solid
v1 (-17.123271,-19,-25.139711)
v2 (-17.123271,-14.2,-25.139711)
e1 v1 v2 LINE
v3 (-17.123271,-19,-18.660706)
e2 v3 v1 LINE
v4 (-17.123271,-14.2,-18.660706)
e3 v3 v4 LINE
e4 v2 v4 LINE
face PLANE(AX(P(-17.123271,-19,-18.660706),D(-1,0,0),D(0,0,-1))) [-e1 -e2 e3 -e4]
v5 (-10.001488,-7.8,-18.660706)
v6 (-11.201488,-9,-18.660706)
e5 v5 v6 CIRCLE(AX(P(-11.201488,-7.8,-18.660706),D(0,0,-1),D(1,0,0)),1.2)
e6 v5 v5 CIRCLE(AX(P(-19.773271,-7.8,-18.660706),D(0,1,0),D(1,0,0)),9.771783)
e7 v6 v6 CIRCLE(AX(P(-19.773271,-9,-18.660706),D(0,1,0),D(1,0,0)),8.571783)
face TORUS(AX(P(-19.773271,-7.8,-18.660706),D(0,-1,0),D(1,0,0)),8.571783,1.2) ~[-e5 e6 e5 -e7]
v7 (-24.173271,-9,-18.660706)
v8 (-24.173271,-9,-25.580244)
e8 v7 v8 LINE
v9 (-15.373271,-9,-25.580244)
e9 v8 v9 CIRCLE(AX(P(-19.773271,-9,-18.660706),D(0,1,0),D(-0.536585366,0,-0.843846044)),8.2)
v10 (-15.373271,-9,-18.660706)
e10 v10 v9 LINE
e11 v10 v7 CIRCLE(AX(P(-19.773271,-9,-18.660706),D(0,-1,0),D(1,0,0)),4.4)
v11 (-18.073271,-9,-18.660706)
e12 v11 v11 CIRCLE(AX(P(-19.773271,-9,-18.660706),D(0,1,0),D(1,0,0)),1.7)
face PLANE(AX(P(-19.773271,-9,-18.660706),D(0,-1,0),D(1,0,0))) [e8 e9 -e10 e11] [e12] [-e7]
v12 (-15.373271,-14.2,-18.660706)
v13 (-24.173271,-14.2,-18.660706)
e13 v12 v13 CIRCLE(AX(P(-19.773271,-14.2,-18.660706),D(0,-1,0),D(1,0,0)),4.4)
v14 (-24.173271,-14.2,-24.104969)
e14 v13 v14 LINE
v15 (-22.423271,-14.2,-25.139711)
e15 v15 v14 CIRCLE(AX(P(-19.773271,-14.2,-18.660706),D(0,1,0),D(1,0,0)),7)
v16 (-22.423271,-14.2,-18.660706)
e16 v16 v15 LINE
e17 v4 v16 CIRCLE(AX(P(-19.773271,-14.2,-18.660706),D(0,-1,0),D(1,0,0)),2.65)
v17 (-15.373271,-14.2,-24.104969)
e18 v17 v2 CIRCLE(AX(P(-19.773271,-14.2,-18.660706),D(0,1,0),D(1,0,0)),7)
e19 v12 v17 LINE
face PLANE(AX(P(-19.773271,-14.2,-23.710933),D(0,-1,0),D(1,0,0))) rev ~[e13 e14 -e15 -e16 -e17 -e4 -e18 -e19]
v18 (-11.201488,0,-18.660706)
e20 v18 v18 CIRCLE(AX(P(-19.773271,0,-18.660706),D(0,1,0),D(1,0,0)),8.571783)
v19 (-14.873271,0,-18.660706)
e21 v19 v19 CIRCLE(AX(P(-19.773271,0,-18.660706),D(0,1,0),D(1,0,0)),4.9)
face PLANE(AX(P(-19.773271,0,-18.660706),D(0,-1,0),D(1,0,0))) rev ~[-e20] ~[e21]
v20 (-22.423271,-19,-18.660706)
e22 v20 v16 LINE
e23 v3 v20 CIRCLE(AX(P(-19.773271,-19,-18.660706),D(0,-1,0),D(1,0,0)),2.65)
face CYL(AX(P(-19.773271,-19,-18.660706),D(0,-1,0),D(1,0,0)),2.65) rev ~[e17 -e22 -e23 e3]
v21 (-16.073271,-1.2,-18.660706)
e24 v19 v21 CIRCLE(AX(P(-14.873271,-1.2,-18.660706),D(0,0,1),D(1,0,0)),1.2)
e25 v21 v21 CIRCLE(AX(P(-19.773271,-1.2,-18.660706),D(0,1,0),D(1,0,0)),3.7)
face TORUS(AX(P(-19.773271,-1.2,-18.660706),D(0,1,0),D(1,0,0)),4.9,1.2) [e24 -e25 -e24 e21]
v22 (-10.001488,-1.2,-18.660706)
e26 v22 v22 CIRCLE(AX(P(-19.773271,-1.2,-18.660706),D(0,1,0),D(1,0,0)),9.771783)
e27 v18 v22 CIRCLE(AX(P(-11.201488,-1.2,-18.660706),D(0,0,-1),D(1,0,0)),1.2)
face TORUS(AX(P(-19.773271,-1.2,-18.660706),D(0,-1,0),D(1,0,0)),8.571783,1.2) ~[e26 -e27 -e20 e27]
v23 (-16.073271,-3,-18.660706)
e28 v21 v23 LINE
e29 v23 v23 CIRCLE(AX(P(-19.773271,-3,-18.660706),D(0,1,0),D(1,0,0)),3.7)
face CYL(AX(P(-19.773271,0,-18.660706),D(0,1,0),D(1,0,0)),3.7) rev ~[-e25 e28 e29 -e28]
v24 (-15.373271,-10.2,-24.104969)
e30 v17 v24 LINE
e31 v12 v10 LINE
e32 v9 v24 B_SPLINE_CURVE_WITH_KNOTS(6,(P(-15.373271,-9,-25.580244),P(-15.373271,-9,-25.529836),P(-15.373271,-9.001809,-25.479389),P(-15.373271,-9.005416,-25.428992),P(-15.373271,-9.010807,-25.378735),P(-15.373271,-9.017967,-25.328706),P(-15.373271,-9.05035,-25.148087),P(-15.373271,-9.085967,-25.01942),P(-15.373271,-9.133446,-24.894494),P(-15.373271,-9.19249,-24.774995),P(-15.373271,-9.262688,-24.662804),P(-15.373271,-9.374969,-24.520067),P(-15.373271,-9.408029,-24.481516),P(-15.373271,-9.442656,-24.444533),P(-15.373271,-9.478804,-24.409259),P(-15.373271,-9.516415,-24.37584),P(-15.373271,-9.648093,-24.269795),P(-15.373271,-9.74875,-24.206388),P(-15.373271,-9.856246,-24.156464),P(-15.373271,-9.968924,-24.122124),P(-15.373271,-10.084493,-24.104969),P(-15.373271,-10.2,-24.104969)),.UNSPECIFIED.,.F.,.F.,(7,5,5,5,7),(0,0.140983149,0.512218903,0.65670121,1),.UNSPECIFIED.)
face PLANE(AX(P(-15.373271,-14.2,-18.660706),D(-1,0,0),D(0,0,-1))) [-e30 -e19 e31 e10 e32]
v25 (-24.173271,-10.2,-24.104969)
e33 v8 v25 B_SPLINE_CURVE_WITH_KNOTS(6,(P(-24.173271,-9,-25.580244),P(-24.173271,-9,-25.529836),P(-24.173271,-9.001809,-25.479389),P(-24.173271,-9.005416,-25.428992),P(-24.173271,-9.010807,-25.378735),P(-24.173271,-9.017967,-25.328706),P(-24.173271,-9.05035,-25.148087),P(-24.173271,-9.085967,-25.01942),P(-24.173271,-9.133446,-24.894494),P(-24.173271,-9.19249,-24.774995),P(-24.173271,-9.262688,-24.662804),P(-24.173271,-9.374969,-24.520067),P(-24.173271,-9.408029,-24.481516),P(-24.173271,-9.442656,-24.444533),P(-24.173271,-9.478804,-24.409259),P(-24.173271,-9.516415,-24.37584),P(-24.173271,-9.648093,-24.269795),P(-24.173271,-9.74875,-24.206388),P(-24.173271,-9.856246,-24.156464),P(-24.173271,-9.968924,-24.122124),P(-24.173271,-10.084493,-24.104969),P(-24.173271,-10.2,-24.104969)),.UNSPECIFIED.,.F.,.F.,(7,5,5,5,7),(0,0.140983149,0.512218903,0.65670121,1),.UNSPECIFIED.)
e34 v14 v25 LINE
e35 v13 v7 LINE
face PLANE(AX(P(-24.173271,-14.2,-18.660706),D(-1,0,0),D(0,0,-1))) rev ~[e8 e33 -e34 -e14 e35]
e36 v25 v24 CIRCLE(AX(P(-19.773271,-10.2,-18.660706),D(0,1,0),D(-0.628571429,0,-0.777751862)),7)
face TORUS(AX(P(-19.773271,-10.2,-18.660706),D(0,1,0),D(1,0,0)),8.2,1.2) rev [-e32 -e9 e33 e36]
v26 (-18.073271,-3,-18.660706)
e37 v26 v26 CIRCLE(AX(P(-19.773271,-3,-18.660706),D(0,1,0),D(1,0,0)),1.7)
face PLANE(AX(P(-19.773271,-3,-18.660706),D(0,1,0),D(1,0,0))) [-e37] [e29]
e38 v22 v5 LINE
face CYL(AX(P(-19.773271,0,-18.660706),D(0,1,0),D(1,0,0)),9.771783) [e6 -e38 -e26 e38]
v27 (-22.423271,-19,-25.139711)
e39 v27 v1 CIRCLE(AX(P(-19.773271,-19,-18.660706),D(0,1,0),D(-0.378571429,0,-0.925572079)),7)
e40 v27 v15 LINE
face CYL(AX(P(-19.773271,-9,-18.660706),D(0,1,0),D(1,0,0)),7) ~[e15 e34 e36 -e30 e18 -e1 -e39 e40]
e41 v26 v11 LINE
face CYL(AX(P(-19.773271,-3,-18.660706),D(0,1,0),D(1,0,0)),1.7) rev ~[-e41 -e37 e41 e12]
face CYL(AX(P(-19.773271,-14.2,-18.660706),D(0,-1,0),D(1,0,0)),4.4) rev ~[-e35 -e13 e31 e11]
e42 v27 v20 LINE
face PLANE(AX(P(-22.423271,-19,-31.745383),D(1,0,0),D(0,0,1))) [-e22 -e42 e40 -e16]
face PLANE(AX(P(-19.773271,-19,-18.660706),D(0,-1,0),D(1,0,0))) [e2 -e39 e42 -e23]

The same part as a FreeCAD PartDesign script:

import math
import FreeCAD as App
import Part
import Sketcher
from FreeCAD import Vector
Q = App.Units.Quantity


def edges_at(feature, points):
    """Names of the edges that pass closest to the given points."""
    edges = feature.Shape.Edges
    near = lambda p: min(range(len(edges)), key=lambda i: edges[i].distToShape(Part.Vertex(*p))[0])
    return sorted({f"Edge{near(p) + 1}" for p in points})

doc = App.newDocument("Part")
body = doc.addObject("PartDesign::Body", "Body")

# Sketch on XZ plane
sketch1 = body.newObject("Sketcher::SketchObject", "Sketch")
sketch1.AttachmentSupport = (doc.getObject("XZ_Plane"), [""])
sketch1.MapMode = "FlatFace"
sketch1.addGeometry([
    Part.LineSegment(Vector(-30, -9, 0), Vector(-30, -29, 0)),
    Part.LineSegment(Vector(-30, -29, 0), Vector(-10, -29, 0)),
    Part.LineSegment(Vector(-10, -29, 0), Vector(-10, -9, 0)),
    Part.LineSegment(Vector(-10, -9, 0), Vector(-30, -9, 0)),
], False)
sketch1.addConstraint([
    Sketcher.Constraint("Coincident", 0, 2, 1, 1),
    Sketcher.Constraint("Coincident", 1, 2, 2, 1),
    Sketcher.Constraint("Coincident", 2, 2, 3, 1),
    Sketcher.Constraint("Coincident", 3, 2, 0, 1),
    Sketcher.Constraint("Vertical", 0),
    Sketcher.Constraint("Horizontal", 1),
    Sketcher.Constraint("Vertical", 2),
    Sketcher.Constraint("Horizontal", 3),
    Sketcher.Constraint("Equal", 3, 0),
    Sketcher.Constraint("DistanceX", 1, 1, 1, 2, Q("20 mm")),
    Sketcher.Constraint("DistanceX", 0, 2, -1, 1, Q("29.773271 mm")),
    Sketcher.Constraint("DistanceY", 0, 2, -1, 1, Q("28.660706 mm")),
])
pad1 = body.newObject("PartDesign::Pad", "Pad")
pad1.Profile = sketch1
pad1.Length = 9

# Sketch on XZ plane
sketch2 = body.newObject("Sketcher::SketchObject", "Sketch001")
sketch2.AttachmentSupport = (doc.getObject("XZ_Plane"), [""])
sketch2.MapMode = "FlatFace"
sketch2.AttachmentOffset = App.Placement(Vector(0, 0, 9), App.Rotation())
sketch2.addGeometry(Part.Circle(Vector(-20, -19, 0), Vector(0, 0, 1), 7), False)
sketch2.addConstraint([
    Sketcher.Constraint("Diameter", 0, Q("14 mm")),
    Sketcher.Constraint("DistanceX", 0, 3, -1, 1, Q("19.773271 mm")),
    Sketcher.Constraint("DistanceY", 0, 3, -1, 1, Q("18.660706 mm")),
])
pad2 = body.newObject("PartDesign::Pad", "Pad001")
pad2.Profile = sketch2
pad2.Length = 10

# Sketch on XZ plane
sketch3 = body.newObject("Sketcher::SketchObject", "Sketch002")
sketch3.AttachmentSupport = (doc.getObject("XZ_Plane"), [""])
sketch3.MapMode = "FlatFace"
sketch3.AttachmentOffset = App.Placement(Vector(0, 0, 19), App.Rotation())
sketch3.addGeometry([
    Part.LineSegment(Vector(-17.1, -31.7, 0), Vector(-17.1, -18.7, 0)),
    Part.ArcOfCircle(Part.Circle(Vector(-19.8, -18.7, 0), Vector(0, 0, 1), 2.6), math.radians(0), math.radians(180)),
    Part.LineSegment(Vector(-22.4, -18.7, 0), Vector(-22.4, -31.7, 0)),
    Part.LineSegment(Vector(-22.4, -31.7, 0), Vector(-17.1, -31.7, 0)),
], False)
sketch3.addConstraint([
    Sketcher.Constraint("Tangent", 0, 2, 1, 1),
    Sketcher.Constraint("Tangent", 1, 2, 2, 1),
    Sketcher.Constraint("Coincident", 2, 2, 3, 1),
    Sketcher.Constraint("Coincident", 3, 2, 0, 1),
    Sketcher.Constraint("Vertical", 0),
    Sketcher.Constraint("Vertical", 2),
    Sketcher.Constraint("Horizontal", 3),
    Sketcher.Constraint("Radius", 1, Q("2.65 mm")),
    Sketcher.Constraint("DistanceY", 0, 1, 0, 2, Q("13.084677 mm")),
    Sketcher.Constraint("DistanceX", 1, 3, -1, 1, Q("19.773271 mm")),
    Sketcher.Constraint("DistanceY", 1, 3, -1, 1, Q("18.660706 mm")),
])
pocket1 = body.newObject("PartDesign::Pocket", "Pocket")
pocket1.Profile = sketch3
pocket1.Length = 8

# Sketch on XY plane
sketch4 = body.newObject("Sketcher::SketchObject", "Sketch003")
sketch4.AttachmentSupport = (doc.getObject("XY_Plane"), [""])
sketch4.MapMode = "FlatFace"
sketch4.AttachmentOffset = App.Placement(Vector(0, 0, -28.660706), App.Rotation())
sketch4.addGeometry([
    Part.LineSegment(Vector(-24, -14, 0), Vector(-24, -9, 0)),
    Part.LineSegment(Vector(-24, -9, 0), Vector(-15, -9, 0)),
    Part.LineSegment(Vector(-15, -9, 0), Vector(-15, -14, 0)),
    Part.LineSegment(Vector(-15, -14, 0), Vector(-24, -14, 0)),
], False)
sketch4.addConstraint([
    Sketcher.Constraint("Coincident", 0, 2, 1, 1),
    Sketcher.Constraint("Coincident", 1, 2, 2, 1),
    Sketcher.Constraint("Coincident", 2, 2, 3, 1),
    Sketcher.Constraint("Coincident", 3, 2, 0, 1),
    Sketcher.Constraint("Vertical", 0),
    Sketcher.Constraint("Horizontal", 1),
    Sketcher.Constraint("Vertical", 2),
    Sketcher.Constraint("Horizontal", 3),
    Sketcher.Constraint("DistanceY", 0, 1, 0, 2, Q("5.2 mm")),
    Sketcher.Constraint("DistanceY", 0, 2, -1, 1, Q("9 mm")),
    Sketcher.Constraint("DistanceX", 1, 1, 1, 2, Q("8.75 mm")),
    Sketcher.Constraint("DistanceX", 0, 2, -1, 1, Q("24.148271 mm")),
])
pocket2 = body.newObject("PartDesign::Pocket", "Pocket001")
pocket2.Profile = sketch4
pocket2.Length = 1
pocket2.Reversed = True

# Sketch on XZ plane
sketch5 = body.newObject("Sketcher::SketchObject", "Sketch004")
sketch5.AttachmentSupport = (doc.getObject("XZ_Plane"), [""])
sketch5.MapMode = "FlatFace"
sketch5.addGeometry(Part.Circle(Vector(-19.8, -18.7, 0), Vector(0, 0, 1), 3.7), False)
sketch5.addConstraint([
    Sketcher.Constraint("Diameter", 0, Q("7.4 mm")),
    Sketcher.Constraint("DistanceX", 0, 3, -1, 1, Q("19.773271 mm")),
    Sketcher.Constraint("DistanceY", 0, 3, -1, 1, Q("18.660706 mm")),
])
pocket3 = body.newObject("PartDesign::Pocket", "Pocket002")
pocket3.Profile = sketch5
pocket3.Length = 3
pocket3.Reversed = True

# Sketch on XZ plane
sketch6 = body.newObject("Sketcher::SketchObject", "Sketch005")
sketch6.AttachmentSupport = (doc.getObject("XZ_Plane"), [""])
sketch6.MapMode = "FlatFace"
sketch6.AttachmentOffset = App.Placement(Vector(0, 0, 19), App.Rotation())
sketch6.addGeometry(Part.Circle(Vector(-19.8, -18.7, 0), Vector(0, 0, 1), 1.7), False)
sketch6.addConstraint([
    Sketcher.Constraint("Diameter", 0, Q("3.35 mm")),
    Sketcher.Constraint("DistanceX", 0, 3, -1, 1, Q("19.773271 mm")),
    Sketcher.Constraint("DistanceY", 0, 3, -1, 1, Q("18.660706 mm")),
])
pocket4 = body.newObject("PartDesign::Pocket", "Pocket003")
pocket4.Profile = sketch6
pocket4.Length = 5

# Sketch on XZ plane
sketch7 = body.newObject("Sketcher::SketchObject", "Sketch006")
sketch7.AttachmentSupport = (doc.getObject("XZ_Plane"), [""])
sketch7.MapMode = "FlatFace"
sketch7.addGeometry([
    Part.Circle(Vector(-20, -19, 0), Vector(0, 0, 1), 17),
    Part.Circle(Vector(-20, -19, 0), Vector(0, 0, 1), 10),
], False)
sketch7.addConstraint([
    Sketcher.Constraint("Coincident", 1, 3, 0, 3),
    Sketcher.Constraint("Diameter", 0, Q("33.509702 mm")),
    Sketcher.Constraint("Diameter", 1, Q("19.543566 mm")),
    Sketcher.Constraint("DistanceX", 0, 3, -1, 1, Q("19.773271 mm")),
    Sketcher.Constraint("DistanceY", 0, 3, -1, 1, Q("18.660706 mm")),
])
pocket5 = body.newObject("PartDesign::Pocket", "Pocket004")
pocket5.Profile = sketch7
pocket5.Length = 20
pocket5.Reversed = True

# Sketch on XZ plane
sketch8 = body.newObject("Sketcher::SketchObject", "Sketch007")
sketch8.AttachmentSupport = (doc.getObject("XZ_Plane"), [""])
sketch8.MapMode = "FlatFace"
sketch8.AttachmentOffset = App.Placement(Vector(0, 0, 3), App.Rotation())
sketch8.addGeometry(Part.Circle(Vector(-19.8, -18.7, 0), Vector(0, 0, 1), 1.7), False)
sketch8.addConstraint([
    Sketcher.Constraint("Diameter", 0, Q("3.4 mm")),
    Sketcher.Constraint("DistanceX", 0, 3, -1, 1, Q("19.773271 mm")),
    Sketcher.Constraint("DistanceY", 0, 3, -1, 1, Q("18.660706 mm")),
])
pocket6 = body.newObject("PartDesign::Pocket", "Pocket005")
pocket6.Profile = sketch8
pocket6.Length = 20
pocket6.Reversed = True
doc.recompute()

fillet = body.newObject("PartDesign::Fillet", "Fillet")
fillet.Base = (pocket6, edges_at(pocket6, [
    (-29.545, -9, -18.661),
    (-29.545, -9, -18.661),
    (-29.545, -9, -18.661),
    (-26.773, -9, -18.661),
    (-29.545, 0, -18.661),
    (-23.473, 0, -18.661),
]))
fillet.Radius = 1.2

# Sketch on XZ plane
sketch9 = body.newObject("Sketcher::SketchObject", "Sketch008")
sketch9.AttachmentSupport = (doc.getObject("XZ_Plane"), [""])
sketch9.MapMode = "FlatFace"
sketch9.AttachmentOffset = App.Placement(Vector(0, 0, 14.2), App.Rotation())
sketch9.addGeometry([
    Part.ArcOfCircle(Part.Circle(Vector(-19.8, -18.7, 0), Vector(0, 0, 1), 4.4), math.radians(0), math.radians(180)),
    Part.LineSegment(Vector(-24.2, -18.7, 0), Vector(-24.2, -31.4, 0)),
    Part.LineSegment(Vector(-24.2, -31.4, 0), Vector(-15.4, -31.4, 0)),
    Part.LineSegment(Vector(-15.4, -31.4, 0), Vector(-15.4, -18.7, 0)),
], False)
sketch9.addConstraint([
    Sketcher.Constraint("Tangent", 0, 2, 1, 1),
    Sketcher.Constraint("Coincident", 1, 2, 2, 1),
    Sketcher.Constraint("Coincident", 2, 2, 3, 1),
    Sketcher.Constraint("Tangent", 3, 2, 0, 1),
    Sketcher.Constraint("Vertical", 1),
    Sketcher.Constraint("Horizontal", 2),
    Sketcher.Constraint("Vertical", 3),
    Sketcher.Constraint("Radius", 0, Q("4.4 mm")),
    Sketcher.Constraint("DistanceY", 1, 2, 1, 1, Q("12.694324 mm")),
    Sketcher.Constraint("DistanceX", 0, 3, -1, 1, Q("19.773271 mm")),
    Sketcher.Constraint("DistanceY", 1, 2, -1, 1, Q("31.35503 mm")),
])
pocket7 = body.newObject("PartDesign::Pocket", "Pocket006")
pocket7.Profile = sketch9
pocket7.Length = 5.2

doc.recompute()
